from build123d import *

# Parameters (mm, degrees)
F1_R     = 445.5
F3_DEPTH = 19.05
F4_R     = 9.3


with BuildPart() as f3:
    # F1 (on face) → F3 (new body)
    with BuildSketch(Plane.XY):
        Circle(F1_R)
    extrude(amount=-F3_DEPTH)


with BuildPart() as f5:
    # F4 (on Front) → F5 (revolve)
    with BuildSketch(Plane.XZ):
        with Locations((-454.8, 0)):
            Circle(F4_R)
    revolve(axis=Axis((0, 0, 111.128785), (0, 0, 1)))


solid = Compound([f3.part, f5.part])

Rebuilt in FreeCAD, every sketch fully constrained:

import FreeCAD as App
import Part
import Sketcher

doc = App.newDocument("Part")
body = doc.addObject("PartDesign::Body", "Body")

# Sketch on XY plane
sketch1 = doc.addObject("Sketcher::SketchObject", "Sketch")
body.addObject(sketch1)
sketch1.AttachmentSupport = (doc.XY_Plane, [""])
sketch1.MapMode = "FlatFace"
sketch1.addGeometry(Part.Circle(App.Vector(0, 0, 0), App.Vector(0, 0, 1), 445.5), False)
sketch1.addConstraint(Sketcher.Constraint("Coincident", 0, 3, -1, 1))
sketch1.addConstraint(Sketcher.Constraint("Diameter", 0, 891.0))
pad1 = doc.addObject("PartDesign::Pad", "Pad")
body.addObject(pad1)
pad1.Profile = sketch1
pad1.Length = 19.05
pad1.Reversed = True
body2 = doc.addObject("PartDesign::Body", "Body001")

# Sketch on XZ plane
sketch2 = doc.addObject("Sketcher::SketchObject", "Sketch001")
body2.addObject(sketch2)
sketch2.AttachmentSupport = (doc.getObject("XZ_Plane001"), [""])
sketch2.MapMode = "FlatFace"
sketch2.addGeometry(Part.Circle(App.Vector(-454.8, 0, 0), App.Vector(0, 0, 1), 9.3), False)
sketch2.addConstraint(Sketcher.Constraint("PointOnObject", 0, 3, -1))
sketch2.addConstraint(Sketcher.Constraint("Diameter", 0, 18.6))
sketch2.addConstraint(Sketcher.Constraint("DistanceX", 0, 3, -1, 1, 454.8))
revolution = doc.addObject("PartDesign::Revolution", "Revolution")
body2.addObject(revolution)
revolution.Profile = sketch2
revolution.ReferenceAxis = (sketch2, ["V_Axis"])
revolution.Angle = 360

doc.recompute()
